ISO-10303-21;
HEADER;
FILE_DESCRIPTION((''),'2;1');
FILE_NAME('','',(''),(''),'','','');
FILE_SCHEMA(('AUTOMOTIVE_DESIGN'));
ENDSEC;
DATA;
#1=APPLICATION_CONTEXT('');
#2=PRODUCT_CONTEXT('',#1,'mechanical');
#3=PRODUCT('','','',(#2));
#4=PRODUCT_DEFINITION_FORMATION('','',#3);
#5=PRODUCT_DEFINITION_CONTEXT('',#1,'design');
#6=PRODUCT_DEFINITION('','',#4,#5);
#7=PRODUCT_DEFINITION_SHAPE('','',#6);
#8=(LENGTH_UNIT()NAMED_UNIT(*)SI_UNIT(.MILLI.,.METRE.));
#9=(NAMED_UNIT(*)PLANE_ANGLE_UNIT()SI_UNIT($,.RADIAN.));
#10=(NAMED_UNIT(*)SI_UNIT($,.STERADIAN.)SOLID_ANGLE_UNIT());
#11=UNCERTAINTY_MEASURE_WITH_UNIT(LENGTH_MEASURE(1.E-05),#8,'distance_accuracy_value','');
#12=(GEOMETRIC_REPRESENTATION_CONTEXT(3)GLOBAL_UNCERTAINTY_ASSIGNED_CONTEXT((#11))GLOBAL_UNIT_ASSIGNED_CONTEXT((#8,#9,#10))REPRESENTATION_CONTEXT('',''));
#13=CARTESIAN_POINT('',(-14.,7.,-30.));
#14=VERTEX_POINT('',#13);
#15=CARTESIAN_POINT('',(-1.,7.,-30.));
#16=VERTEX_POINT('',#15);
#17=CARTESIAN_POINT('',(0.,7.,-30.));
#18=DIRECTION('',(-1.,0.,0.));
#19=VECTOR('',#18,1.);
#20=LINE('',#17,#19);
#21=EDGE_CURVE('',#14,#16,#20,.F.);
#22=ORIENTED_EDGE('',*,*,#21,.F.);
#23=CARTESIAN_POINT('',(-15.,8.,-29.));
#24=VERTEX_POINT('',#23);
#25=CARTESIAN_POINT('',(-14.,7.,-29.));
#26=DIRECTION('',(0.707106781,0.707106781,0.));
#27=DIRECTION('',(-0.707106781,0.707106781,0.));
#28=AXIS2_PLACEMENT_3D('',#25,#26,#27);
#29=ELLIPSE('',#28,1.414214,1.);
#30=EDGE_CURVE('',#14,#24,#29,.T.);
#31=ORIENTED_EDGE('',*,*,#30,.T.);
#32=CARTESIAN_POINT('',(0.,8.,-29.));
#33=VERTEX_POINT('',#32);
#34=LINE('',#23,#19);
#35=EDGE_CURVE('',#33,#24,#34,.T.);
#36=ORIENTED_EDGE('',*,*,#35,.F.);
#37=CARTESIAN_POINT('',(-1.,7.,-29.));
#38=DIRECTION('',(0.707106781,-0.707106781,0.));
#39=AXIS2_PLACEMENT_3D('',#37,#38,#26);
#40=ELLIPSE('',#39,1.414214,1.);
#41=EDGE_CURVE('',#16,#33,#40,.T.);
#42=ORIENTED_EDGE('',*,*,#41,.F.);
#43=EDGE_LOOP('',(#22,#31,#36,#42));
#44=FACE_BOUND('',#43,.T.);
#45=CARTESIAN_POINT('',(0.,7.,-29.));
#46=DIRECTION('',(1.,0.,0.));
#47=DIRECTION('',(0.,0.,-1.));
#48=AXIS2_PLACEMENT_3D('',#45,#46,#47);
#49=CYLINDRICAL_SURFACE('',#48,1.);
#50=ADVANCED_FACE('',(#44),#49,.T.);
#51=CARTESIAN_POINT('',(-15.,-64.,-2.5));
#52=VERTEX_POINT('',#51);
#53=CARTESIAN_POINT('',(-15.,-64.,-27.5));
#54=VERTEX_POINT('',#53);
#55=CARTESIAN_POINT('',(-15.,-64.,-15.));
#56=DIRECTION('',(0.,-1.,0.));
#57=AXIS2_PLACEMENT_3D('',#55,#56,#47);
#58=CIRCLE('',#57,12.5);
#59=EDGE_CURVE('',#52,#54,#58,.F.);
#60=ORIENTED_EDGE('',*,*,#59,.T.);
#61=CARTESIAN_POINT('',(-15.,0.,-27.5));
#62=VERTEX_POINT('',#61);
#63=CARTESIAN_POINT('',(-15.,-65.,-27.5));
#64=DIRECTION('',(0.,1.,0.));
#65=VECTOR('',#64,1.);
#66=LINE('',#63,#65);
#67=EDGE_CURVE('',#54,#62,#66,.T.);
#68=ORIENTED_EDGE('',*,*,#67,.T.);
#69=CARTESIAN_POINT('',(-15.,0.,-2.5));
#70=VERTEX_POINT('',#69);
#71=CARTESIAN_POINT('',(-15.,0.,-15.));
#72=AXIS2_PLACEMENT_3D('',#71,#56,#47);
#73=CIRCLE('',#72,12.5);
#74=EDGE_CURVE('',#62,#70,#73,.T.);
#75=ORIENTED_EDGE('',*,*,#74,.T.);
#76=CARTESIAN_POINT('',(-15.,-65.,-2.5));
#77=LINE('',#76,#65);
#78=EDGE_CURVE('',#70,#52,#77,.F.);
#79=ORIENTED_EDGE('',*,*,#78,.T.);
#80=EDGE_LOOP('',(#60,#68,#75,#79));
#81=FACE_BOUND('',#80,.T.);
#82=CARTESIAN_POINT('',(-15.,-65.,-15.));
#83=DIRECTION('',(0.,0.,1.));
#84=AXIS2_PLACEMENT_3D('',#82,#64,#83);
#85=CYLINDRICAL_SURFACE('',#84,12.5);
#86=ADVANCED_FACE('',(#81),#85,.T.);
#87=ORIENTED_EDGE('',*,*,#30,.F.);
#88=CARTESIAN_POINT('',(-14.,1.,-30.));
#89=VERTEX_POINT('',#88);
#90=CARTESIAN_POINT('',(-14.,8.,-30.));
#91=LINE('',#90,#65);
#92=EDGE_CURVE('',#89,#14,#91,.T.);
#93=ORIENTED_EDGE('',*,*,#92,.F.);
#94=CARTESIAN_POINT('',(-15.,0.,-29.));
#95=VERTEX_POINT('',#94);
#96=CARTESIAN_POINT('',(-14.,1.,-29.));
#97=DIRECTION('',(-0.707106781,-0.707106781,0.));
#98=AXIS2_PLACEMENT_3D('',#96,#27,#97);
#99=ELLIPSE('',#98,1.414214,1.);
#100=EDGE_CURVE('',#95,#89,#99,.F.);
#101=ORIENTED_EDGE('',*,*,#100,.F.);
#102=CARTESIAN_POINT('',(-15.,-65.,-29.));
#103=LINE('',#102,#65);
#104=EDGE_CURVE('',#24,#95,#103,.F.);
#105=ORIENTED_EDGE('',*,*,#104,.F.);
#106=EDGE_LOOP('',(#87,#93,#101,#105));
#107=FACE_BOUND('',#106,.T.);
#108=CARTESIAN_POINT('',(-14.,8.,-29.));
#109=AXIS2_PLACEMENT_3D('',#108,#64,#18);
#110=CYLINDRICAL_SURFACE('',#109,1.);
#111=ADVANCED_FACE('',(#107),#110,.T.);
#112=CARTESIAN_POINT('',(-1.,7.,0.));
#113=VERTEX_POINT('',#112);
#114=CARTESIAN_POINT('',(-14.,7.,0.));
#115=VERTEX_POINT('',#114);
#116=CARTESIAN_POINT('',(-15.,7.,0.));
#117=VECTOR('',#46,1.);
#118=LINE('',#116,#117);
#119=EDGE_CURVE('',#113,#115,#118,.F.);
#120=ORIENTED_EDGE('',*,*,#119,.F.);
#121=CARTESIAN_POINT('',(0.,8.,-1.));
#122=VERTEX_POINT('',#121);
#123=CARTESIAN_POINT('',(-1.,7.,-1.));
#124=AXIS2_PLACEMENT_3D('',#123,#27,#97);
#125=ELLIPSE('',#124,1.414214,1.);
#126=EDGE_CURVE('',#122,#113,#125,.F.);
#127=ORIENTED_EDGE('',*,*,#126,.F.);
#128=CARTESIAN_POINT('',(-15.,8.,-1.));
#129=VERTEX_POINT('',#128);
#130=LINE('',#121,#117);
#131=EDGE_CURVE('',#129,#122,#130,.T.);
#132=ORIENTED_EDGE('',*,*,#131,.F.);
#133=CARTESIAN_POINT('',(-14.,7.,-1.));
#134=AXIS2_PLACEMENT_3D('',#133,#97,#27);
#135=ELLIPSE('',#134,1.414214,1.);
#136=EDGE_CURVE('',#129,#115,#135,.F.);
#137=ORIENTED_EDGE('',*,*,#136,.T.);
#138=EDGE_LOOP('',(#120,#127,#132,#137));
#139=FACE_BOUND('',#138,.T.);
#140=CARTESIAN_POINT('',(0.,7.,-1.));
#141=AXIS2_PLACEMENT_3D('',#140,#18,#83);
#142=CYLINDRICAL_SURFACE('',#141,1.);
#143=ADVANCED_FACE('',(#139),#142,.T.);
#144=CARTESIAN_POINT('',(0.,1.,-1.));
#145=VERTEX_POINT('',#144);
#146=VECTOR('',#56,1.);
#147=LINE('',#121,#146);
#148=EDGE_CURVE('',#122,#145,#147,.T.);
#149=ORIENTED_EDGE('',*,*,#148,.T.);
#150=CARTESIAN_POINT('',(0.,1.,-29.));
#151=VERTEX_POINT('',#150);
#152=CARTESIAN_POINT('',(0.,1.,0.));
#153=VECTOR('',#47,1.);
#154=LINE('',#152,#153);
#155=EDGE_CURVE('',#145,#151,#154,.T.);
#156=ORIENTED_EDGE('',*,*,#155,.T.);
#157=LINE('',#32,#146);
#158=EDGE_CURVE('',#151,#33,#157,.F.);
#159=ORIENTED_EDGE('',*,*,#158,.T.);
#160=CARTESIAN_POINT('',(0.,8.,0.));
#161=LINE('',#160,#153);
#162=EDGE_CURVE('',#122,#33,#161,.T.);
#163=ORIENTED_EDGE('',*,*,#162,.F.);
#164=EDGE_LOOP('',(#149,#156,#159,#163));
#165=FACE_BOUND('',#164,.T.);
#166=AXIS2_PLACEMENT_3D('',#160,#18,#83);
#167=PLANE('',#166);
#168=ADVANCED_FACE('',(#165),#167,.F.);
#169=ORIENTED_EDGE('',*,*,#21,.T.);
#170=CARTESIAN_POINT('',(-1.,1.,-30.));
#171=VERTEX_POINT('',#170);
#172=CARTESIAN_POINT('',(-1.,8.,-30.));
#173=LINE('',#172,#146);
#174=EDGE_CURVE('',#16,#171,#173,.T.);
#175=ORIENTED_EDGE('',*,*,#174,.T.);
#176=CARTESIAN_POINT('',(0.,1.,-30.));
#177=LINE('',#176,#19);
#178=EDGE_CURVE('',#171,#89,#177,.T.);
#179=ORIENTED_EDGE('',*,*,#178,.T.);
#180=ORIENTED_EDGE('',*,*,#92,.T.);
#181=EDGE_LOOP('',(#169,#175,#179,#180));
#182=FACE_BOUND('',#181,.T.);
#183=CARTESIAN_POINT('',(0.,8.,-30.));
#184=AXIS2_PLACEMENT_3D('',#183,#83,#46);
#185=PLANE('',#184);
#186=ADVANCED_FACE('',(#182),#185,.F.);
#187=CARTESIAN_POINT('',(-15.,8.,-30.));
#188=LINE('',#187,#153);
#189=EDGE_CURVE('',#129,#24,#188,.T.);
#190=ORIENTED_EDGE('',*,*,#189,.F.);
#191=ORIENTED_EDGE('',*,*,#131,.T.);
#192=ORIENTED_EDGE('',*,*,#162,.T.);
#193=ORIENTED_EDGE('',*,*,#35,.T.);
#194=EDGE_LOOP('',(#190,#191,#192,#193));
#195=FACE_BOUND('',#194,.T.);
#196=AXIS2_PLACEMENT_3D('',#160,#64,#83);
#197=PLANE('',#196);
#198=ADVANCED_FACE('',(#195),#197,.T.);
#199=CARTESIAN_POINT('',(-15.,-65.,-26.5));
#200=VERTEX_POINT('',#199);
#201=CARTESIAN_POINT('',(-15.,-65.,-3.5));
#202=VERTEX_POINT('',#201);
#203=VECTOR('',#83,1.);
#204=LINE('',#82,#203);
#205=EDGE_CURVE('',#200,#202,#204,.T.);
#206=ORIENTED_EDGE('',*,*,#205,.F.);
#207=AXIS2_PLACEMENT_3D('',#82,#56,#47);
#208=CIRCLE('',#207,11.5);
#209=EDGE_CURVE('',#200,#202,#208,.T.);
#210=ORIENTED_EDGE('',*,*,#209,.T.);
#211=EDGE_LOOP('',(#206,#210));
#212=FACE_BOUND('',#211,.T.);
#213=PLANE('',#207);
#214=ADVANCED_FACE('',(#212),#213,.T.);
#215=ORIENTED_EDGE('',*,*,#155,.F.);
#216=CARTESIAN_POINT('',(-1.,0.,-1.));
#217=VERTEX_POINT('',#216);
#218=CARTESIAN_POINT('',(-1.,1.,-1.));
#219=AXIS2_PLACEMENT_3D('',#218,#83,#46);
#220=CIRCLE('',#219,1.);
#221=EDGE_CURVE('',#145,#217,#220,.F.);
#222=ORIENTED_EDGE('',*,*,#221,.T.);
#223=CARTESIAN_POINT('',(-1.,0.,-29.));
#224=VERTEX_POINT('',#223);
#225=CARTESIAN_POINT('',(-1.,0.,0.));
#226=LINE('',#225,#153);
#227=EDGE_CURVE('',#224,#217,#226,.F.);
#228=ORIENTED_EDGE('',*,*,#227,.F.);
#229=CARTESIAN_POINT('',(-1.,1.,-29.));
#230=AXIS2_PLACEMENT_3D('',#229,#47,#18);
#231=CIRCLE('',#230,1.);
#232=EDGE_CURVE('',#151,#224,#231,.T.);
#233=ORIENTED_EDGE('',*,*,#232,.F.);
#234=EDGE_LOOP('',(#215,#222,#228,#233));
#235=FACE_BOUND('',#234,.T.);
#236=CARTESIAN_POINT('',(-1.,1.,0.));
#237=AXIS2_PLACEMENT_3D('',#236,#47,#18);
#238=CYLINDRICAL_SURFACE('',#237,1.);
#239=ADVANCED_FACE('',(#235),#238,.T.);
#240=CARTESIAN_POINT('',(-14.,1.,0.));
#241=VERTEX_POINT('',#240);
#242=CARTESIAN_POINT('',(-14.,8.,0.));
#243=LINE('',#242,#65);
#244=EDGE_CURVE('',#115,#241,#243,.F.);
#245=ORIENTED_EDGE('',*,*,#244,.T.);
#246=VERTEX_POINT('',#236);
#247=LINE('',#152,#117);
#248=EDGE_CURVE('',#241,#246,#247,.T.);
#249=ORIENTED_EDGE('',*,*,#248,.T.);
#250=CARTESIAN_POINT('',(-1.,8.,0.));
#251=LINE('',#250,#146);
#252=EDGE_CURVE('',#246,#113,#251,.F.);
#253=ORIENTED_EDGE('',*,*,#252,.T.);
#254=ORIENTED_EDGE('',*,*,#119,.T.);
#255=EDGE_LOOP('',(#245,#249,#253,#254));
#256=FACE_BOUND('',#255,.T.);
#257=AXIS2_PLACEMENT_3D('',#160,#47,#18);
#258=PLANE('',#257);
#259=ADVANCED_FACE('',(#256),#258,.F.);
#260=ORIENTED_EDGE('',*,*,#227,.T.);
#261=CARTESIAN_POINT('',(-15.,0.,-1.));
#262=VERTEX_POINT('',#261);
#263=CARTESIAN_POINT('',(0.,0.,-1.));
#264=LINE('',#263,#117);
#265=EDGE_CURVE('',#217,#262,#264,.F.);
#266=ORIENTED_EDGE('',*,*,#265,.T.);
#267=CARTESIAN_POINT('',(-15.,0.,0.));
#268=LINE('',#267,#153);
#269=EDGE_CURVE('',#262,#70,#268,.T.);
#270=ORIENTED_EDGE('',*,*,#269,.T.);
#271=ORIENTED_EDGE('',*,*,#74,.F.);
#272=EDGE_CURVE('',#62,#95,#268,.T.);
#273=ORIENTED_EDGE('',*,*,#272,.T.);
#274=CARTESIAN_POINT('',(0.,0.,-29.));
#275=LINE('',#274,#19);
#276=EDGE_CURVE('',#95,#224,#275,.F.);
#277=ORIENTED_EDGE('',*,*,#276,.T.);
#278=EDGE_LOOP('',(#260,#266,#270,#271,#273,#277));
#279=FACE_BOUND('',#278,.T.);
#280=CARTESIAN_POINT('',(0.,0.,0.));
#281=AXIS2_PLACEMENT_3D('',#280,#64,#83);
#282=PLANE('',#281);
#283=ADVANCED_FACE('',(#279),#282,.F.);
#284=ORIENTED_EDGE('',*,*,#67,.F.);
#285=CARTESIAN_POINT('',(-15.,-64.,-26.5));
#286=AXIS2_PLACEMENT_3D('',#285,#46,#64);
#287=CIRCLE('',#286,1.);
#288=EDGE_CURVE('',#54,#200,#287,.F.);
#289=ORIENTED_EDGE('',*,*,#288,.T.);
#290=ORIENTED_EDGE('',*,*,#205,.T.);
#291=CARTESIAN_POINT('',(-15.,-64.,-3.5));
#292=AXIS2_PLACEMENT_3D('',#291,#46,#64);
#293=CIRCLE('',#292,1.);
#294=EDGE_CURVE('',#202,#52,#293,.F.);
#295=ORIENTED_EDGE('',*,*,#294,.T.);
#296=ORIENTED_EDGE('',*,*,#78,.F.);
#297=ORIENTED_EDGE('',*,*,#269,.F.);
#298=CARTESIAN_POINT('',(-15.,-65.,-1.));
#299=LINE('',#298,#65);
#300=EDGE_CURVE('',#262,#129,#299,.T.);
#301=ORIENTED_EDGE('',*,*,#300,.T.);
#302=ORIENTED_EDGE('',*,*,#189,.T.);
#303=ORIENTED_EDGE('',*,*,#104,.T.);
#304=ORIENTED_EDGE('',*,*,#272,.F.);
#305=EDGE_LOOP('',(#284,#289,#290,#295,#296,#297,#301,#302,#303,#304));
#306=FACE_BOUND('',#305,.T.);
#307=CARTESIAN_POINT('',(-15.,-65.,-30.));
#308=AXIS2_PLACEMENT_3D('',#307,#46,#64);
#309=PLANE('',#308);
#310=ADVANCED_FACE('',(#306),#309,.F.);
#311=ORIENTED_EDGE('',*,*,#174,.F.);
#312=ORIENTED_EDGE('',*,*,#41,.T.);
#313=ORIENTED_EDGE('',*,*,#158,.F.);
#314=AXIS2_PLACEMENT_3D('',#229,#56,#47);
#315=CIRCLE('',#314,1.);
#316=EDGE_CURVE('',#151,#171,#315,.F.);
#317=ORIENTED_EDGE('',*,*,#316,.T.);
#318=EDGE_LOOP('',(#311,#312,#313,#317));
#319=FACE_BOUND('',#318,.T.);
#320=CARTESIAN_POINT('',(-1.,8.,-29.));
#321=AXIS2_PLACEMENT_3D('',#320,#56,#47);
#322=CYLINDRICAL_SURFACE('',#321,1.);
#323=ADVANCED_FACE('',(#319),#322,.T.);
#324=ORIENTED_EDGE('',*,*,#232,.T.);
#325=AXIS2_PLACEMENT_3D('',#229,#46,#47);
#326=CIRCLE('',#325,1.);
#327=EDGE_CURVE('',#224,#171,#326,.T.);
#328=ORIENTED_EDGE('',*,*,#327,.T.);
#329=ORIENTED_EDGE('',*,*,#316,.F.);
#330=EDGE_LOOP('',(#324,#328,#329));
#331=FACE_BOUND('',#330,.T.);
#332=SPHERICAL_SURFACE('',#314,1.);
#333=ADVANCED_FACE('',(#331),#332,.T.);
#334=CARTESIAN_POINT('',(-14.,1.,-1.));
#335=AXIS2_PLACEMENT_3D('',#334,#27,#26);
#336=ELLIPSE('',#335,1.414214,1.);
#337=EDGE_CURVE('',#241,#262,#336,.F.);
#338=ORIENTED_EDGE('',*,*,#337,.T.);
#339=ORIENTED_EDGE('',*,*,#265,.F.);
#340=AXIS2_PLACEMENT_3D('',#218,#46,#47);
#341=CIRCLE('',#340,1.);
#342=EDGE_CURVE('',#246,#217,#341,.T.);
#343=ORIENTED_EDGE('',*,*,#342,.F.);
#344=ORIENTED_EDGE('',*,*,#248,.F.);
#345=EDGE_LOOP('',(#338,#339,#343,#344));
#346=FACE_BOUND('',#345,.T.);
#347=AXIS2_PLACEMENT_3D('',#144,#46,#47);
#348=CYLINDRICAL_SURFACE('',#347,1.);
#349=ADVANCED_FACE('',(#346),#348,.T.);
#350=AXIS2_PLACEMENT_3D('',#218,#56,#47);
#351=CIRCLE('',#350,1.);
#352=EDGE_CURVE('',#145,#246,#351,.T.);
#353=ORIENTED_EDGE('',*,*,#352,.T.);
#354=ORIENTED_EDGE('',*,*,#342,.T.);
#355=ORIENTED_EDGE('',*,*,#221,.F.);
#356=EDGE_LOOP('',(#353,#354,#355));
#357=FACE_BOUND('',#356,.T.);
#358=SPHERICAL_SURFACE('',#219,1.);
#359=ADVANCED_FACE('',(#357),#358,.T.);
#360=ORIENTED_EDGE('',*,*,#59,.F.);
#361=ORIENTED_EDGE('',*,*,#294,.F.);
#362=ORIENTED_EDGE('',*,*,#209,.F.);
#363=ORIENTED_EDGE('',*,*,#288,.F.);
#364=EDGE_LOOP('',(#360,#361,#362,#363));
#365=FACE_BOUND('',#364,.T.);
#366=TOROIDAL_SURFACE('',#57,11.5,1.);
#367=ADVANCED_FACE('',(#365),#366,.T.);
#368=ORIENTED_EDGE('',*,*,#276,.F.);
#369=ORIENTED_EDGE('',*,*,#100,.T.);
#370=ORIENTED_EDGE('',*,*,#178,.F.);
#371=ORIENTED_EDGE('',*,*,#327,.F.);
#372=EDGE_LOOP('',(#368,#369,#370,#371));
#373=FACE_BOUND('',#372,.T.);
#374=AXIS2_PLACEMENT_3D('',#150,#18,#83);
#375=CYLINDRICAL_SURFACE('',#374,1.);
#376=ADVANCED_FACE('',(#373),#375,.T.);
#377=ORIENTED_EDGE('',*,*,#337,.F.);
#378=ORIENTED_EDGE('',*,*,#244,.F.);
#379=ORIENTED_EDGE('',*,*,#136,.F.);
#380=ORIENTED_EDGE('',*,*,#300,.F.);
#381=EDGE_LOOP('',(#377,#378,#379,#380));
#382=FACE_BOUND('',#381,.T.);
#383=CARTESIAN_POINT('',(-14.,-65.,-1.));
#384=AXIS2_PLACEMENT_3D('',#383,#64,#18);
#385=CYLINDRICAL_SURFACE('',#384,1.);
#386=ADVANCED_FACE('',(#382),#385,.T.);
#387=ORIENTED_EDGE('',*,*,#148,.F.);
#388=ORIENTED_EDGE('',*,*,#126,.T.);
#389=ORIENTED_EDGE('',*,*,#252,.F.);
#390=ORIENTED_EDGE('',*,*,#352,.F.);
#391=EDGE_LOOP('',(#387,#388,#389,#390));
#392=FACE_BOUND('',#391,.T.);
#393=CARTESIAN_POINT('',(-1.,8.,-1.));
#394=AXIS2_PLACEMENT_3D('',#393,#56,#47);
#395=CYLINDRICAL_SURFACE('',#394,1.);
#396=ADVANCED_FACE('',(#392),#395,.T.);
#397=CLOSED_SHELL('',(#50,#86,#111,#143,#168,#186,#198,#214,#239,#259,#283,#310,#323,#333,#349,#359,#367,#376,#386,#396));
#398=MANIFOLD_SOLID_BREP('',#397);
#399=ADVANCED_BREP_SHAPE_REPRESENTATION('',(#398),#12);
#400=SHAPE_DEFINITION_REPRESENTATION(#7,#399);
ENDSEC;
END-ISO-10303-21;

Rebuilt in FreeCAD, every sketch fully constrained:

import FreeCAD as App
import Part
import Sketcher

V = App.Vector


def edges_at(feature, points):
    """Names of the edges that pass closest to the given points."""
    edges = feature.Shape.Edges
    near = lambda p: min(range(len(edges)), key=lambda i: edges[i].distToShape(Part.Vertex(*p))[0])
    return sorted({f"Edge{near(p) + 1}" for p in points})

doc = App.newDocument("Part")
params = doc.addObject("Spreadsheet::Sheet", "Params")
for row, (alias, value) in enumerate([
    ("sketch1_width", "30 mm"),
    ("pad1_length", "8 mm"),
    ("sketch2_diameter", "25 mm"),
    ("pad2_length", "65 mm"),
    ("sketch3_width", "15 mm"),
    ("sketch3_height", "30 mm"),
    ("fillet_radius", "1 mm"),
    ("fillet2_radius", "1 mm"),
], start=1):
    params.set(f"A{row}", alias)
    params.set(f"B{row}", "=" + value)
    params.setAlias(f"B{row}", alias)

body = doc.addObject("PartDesign::Body", "Body")

# Sketch on XZ plane
sketch1 = doc.addObject("Sketcher::SketchObject", "Sketch")
body.addObject(sketch1)
sketch1.AttachmentSupport = (doc.XZ_Plane, [""])
sketch1.MapMode = "FlatFace"
sketch1.addGeometry(Part.LineSegment(V(-30, -30, 0), V(-30, 0, 0)), False)
sketch1.addGeometry(Part.LineSegment(V(-30, 0, 0), V(0, 0, 0)), False)
sketch1.addGeometry(Part.LineSegment(V(0, 0, 0), V(0, -30, 0)), False)
sketch1.addGeometry(Part.LineSegment(V(0, -30, 0), V(-30, -30, 0)), False)
sketch1.addConstraint(Sketcher.Constraint("Coincident", 0, 2, 1, 1))
sketch1.addConstraint(Sketcher.Constraint("Coincident", 1, 2, 2, 1))
sketch1.addConstraint(Sketcher.Constraint("Coincident", 2, 2, 3, 1))
sketch1.addConstraint(Sketcher.Constraint("Coincident", 3, 2, 0, 1))
sketch1.addConstraint(Sketcher.Constraint("Vertical", 0))
sketch1.addConstraint(Sketcher.Constraint("Horizontal", 1))
sketch1.addConstraint(Sketcher.Constraint("Vertical", 2))
sketch1.addConstraint(Sketcher.Constraint("Horizontal", 3))
sketch1.addConstraint(Sketcher.Constraint("Coincident", 1, 2, -1, 1))
sketch1.addConstraint(Sketcher.Constraint("Equal", 3, 0))
sketch1.addConstraint(Sketcher.Constraint("DistanceX", 1, 1, 1, 2, 30.0))
sketch1.setExpression("Constraints[10]", "Params.sketch1_width")
pad1 = doc.addObject("PartDesign::Pad", "Pad")
body.addObject(pad1)
pad1.Profile = sketch1
pad1.setExpression("Length", "Params.pad1_length")
pad1.Reversed = True

# Sketch on XZ plane
sketch2 = doc.addObject("Sketcher::SketchObject", "Sketch001")
body.addObject(sketch2)
sketch2.AttachmentSupport = (doc.XZ_Plane, [""])
sketch2.MapMode = "FlatFace"
sketch2.addGeometry(Part.Circle(V(-15, -15, 0), V(0, 0, 1), 12), False)
sketch2.addConstraint(Sketcher.Constraint("Diameter", 0, 25.0))
sketch2.addConstraint(Sketcher.Constraint("DistanceX", 0, 3, -1, 1, 15.0))
sketch2.addConstraint(Sketcher.Constraint("DistanceY", 0, 3, -1, 1, 15.0))
sketch2.setExpression("Constraints[0]", "Params.sketch2_diameter")
pad2 = doc.addObject("PartDesign::Pad", "Pad001")
body.addObject(pad2)
pad2.Profile = sketch2
pad2.setExpression("Length", "Params.pad2_length")

# Sketch on XZ plane
sketch3 = doc.addObject("Sketcher::SketchObject", "Sketch002")
body.addObject(sketch3)
sketch3.AttachmentSupport = (doc.XZ_Plane, [""])
sketch3.MapMode = "FlatFace"
sketch3.AttachmentOffset = App.Placement(V(0, 0, -8), App.Rotation())
sketch3.addGeometry(Part.LineSegment(V(-30, -30, 0), V(-30, 0, 0)), False)
sketch3.addGeometry(Part.LineSegment(V(-30, 0, 0), V(-15, 0, 0)), False)
sketch3.addGeometry(Part.LineSegment(V(-15, 0, 0), V(-15, -30, 0)), False)
sketch3.addGeometry(Part.LineSegment(V(-15, -30, 0), V(-30, -30, 0)), False)
sketch3.addConstraint(Sketcher.Constraint("Coincident", 0, 2, 1, 1))
sketch3.addConstraint(Sketcher.Constraint("Coincident", 1, 2, 2, 1))
sketch3.addConstraint(Sketcher.Constraint("Coincident", 2, 2, 3, 1))
sketch3.addConstraint(Sketcher.Constraint("Coincident", 3, 2, 0, 1))
sketch3.addConstraint(Sketcher.Constraint("Vertical", 0))
sketch3.addConstraint(Sketcher.Constraint("Horizontal", 1))
sketch3.addConstraint(Sketcher.Constraint("Vertical", 2))
sketch3.addConstraint(Sketcher.Constraint("Horizontal", 3))
sketch3.addConstraint(Sketcher.Constraint("PointOnObject", 0, 2, -1))
sketch3.addConstraint(Sketcher.Constraint("DistanceX", 1, 1, 1, 2, 15.0))
sketch3.addConstraint(Sketcher.Constraint("DistanceY", 0, 1, 0, 2, 30.0))
sketch3.addConstraint(Sketcher.Constraint("DistanceX", 0, 2, -1, 1, 30.0))
sketch3.setExpression("Constraints[9]", "Params.sketch3_width")
sketch3.setExpression("Constraints[10]", "Params.sketch3_height")
pocket1 = doc.addObject("PartDesign::Pocket", "Pocket")
body.addObject(pocket1)
pocket1.Profile = sketch3
pocket1.Type = "ThroughAll"
pocket1.Reversed = True
doc.recompute()

fillet = doc.addObject("PartDesign::Fillet", "Fillet")
body.addObject(fillet)
fillet.Base = (pocket1, edges_at(pocket1, [(-2.5, -65, -15)]))
fillet.setExpression("Radius", "Params.fillet_radius")
doc.recompute()

fillet2 = doc.addObject("PartDesign::Fillet", "Fillet001")
body.addObject(fillet2)
fillet2.Base = (fillet, edges_at(fillet, [
    (-7.5, 0, 0),
    (-7.5, 8, 0),
    (-15, 4, 0),
    (-15, 4, -30),
    (-7.5, 0, -30),
    (0, 0, -15),
    (0, 4, 0),
    (0, 4, -30),
    (-7.5, 8, -30),
]))
fillet2.setExpression("Radius", "Params.fillet2_radius")

doc.recompute()
